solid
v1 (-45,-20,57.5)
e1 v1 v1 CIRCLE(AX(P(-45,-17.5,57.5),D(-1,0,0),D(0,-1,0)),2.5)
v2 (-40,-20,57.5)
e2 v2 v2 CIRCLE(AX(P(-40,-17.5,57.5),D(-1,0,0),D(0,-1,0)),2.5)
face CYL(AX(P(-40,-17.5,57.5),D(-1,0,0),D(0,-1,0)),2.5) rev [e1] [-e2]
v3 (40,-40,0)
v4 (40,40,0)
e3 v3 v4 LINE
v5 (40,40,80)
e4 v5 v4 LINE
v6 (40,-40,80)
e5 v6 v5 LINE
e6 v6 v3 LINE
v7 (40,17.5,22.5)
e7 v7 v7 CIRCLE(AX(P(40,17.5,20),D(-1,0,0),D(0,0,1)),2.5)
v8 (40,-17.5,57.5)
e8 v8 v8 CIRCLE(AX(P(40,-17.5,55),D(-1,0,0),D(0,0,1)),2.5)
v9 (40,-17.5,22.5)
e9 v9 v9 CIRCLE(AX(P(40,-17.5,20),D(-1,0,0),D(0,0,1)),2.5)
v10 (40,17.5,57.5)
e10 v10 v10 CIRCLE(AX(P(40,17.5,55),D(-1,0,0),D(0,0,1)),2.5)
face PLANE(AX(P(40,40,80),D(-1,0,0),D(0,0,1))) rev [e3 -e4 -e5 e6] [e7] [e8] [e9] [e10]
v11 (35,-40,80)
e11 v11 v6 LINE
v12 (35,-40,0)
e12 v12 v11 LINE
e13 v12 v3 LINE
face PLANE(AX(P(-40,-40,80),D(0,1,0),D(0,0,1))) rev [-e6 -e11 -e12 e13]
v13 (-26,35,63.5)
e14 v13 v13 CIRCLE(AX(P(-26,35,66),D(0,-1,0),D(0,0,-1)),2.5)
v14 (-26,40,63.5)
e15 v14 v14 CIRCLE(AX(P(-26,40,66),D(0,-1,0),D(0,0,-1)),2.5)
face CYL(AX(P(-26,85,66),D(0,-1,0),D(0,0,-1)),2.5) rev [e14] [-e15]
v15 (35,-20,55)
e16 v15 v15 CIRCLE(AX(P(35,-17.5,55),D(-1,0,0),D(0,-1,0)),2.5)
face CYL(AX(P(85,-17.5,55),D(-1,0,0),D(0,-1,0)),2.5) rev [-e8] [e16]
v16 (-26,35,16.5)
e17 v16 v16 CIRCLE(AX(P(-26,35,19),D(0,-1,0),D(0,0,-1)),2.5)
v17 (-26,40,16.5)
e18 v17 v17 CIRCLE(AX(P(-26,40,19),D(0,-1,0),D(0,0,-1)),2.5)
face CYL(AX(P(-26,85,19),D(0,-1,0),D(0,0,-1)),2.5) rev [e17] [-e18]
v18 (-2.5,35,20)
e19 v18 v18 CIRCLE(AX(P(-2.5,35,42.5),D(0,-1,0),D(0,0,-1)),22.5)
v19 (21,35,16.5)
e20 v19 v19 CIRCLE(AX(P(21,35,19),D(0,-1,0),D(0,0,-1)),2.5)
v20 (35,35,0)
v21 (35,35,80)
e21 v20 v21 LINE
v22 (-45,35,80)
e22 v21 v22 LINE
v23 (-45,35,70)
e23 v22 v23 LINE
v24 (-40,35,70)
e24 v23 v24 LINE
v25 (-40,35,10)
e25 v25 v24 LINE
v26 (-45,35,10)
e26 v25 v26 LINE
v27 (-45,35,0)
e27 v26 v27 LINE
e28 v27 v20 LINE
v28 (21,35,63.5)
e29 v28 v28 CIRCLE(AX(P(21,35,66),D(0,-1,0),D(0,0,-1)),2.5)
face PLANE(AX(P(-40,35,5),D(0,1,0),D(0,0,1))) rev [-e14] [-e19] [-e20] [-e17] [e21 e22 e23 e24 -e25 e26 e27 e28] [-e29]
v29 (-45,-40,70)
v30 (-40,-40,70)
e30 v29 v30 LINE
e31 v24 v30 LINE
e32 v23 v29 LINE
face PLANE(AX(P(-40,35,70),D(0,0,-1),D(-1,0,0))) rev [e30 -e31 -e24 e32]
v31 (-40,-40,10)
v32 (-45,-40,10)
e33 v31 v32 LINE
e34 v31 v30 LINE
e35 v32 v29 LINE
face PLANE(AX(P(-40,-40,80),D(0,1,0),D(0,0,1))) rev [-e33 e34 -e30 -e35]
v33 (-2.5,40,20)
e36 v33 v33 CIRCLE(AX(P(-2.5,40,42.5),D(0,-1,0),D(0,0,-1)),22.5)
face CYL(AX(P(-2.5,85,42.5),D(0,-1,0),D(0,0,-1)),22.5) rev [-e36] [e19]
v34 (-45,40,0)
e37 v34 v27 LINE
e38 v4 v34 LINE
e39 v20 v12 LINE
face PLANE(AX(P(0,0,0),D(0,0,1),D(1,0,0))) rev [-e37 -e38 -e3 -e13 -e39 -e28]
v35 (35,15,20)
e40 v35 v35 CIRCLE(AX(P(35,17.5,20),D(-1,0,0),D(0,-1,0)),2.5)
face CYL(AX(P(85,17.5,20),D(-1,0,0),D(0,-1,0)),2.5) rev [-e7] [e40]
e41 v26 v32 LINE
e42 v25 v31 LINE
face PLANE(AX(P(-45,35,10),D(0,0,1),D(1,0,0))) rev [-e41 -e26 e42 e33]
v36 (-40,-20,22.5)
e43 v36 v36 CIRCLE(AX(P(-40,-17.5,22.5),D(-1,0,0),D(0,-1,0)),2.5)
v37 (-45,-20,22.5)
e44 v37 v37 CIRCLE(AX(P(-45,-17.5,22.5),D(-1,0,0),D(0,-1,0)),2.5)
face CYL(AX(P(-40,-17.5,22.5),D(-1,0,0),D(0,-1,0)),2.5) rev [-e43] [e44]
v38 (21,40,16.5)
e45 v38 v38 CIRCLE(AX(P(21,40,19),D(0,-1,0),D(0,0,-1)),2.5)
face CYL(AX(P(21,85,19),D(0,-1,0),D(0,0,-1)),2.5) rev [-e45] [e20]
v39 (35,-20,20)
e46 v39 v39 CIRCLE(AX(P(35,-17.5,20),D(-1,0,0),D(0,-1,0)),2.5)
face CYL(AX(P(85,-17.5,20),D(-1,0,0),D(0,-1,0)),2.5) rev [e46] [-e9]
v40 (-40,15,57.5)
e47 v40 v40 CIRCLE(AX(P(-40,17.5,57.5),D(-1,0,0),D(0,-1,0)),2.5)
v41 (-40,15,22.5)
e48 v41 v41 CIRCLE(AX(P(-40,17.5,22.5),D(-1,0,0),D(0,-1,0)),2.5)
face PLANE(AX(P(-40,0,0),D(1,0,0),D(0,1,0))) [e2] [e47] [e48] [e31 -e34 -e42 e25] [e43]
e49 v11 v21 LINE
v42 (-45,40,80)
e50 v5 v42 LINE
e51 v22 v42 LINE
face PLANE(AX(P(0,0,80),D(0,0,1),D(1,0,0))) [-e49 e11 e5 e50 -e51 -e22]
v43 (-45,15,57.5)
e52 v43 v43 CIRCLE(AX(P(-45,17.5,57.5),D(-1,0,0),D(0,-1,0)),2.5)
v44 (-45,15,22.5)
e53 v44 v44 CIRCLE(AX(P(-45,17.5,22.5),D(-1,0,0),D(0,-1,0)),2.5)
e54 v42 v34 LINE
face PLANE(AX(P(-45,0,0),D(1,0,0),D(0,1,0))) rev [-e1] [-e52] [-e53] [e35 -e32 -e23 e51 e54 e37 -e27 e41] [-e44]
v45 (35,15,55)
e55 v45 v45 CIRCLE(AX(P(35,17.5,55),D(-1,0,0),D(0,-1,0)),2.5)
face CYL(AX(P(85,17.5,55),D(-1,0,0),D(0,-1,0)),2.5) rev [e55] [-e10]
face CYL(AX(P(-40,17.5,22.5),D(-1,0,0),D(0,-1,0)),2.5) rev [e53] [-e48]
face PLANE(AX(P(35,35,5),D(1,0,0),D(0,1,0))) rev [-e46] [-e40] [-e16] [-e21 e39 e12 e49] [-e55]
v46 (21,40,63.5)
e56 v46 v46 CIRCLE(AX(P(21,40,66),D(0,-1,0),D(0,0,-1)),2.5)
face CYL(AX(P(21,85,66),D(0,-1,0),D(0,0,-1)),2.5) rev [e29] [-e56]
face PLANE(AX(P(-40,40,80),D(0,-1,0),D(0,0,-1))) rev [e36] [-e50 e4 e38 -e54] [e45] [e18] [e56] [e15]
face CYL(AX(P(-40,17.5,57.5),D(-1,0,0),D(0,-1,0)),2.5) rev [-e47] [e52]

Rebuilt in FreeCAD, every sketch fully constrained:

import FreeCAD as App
import Part
import Sketcher
Q = App.Units.Quantity


def add_polygon(sketch, points):
    """Adds a closed chain of lines whose ends are joined by coincident constraints."""
    first, n = sketch.GeometryCount, len(points)
    for a, b in zip(points, points[1:] + points[:1]):
        sketch.addGeometry(Part.LineSegment(App.Vector(*a, 0), App.Vector(*b, 0)), False)
    for i in range(n):
        sketch.addConstraint(Sketcher.Constraint("Coincident", first + i, 2, first + (i + 1) % n, 1))

doc = App.newDocument("Part")
params = doc.addObject("Spreadsheet::Sheet", "Params")
for row, (alias, value) in enumerate([
    ("sketch1_width", "80 mm"),
    ("pad1_length", "80 mm"),
    ("sketch2_width", "75 mm"),
    ("pocket1_length", "75 mm"),
    ("sketch3_diameter", "5 mm"),
    ("pocket2_length", "50 mm"),
    ("sketch4_diameter", "5 mm"),
    ("pocket3_length", "50 mm"),
    ("sketch5_diameter", "45 mm"),
    ("pocket4_length", "50 mm"),
    ("sketch6_width", "80 mm"),
    ("pad2_length", "5 mm"),
    ("sketch7_diameter", "5 mm"),
    ("pocket5_length", "5 mm"),
    ("sketch8_width", "5 mm"),
    ("sketch8_height", "10 mm"),
    ("pocket6_length", "75 mm"),
    ("sketch9_width", "75 mm"),
    ("sketch9_height", "5 mm"),
    ("pocket7_length", "75 mm"),
], start=1):
    params.set(f"A{row}", alias)
    params.set(f"B{row}", "=" + value)
    params.setAlias(f"B{row}", alias)

body = doc.addObject("PartDesign::Body", "Body")

# Sketch on XY plane
sketch1 = body.newObject("Sketcher::SketchObject", "Sketch")
sketch1.AttachmentSupport = (doc.getObject("XY_Plane"), [""])
sketch1.MapMode = "FlatFace"
add_polygon(sketch1, [(-40, 40), (-40, -40), (40, -40), (40, 40)])  # lines 0-3
sketch1.addConstraint(Sketcher.Constraint("Vertical", 0))
sketch1.addConstraint(Sketcher.Constraint("Horizontal", 1))
sketch1.addConstraint(Sketcher.Constraint("Vertical", 2))
sketch1.addConstraint(Sketcher.Constraint("Horizontal", 3))
sketch1.addConstraint(Sketcher.Constraint("Symmetric", 0, 2, 2, 2, -1, 1))
sketch1.addConstraint(Sketcher.Constraint("Equal", 3, 0))
sketch1.addConstraint(Sketcher.Constraint("DistanceX", 1, 1, 1, 2, Q("80 mm")))
sketch1.setExpression("Constraints[10]", "Params.sketch1_width")
pad1 = body.newObject("PartDesign::Pad", "Pad")
pad1.Profile = sketch1
pad1.setExpression("Length", "Params.pad1_length")

# Sketch on XY plane
sketch2 = body.newObject("Sketcher::SketchObject", "Sketch001")
sketch2.AttachmentSupport = (doc.getObject("XY_Plane"), [""])
sketch2.MapMode = "FlatFace"
sketch2.AttachmentOffset = App.Placement(App.Vector(0, 0, 80), App.Rotation())
add_polygon(sketch2, [(-40, 35), (-40, -40), (35, -40), (35, 35)])  # lines 0-3
sketch2.addConstraint(Sketcher.Constraint("Vertical", 0))
sketch2.addConstraint(Sketcher.Constraint("Horizontal", 1))
sketch2.addConstraint(Sketcher.Constraint("Vertical", 2))
sketch2.addConstraint(Sketcher.Constraint("Horizontal", 3))
sketch2.addConstraint(Sketcher.Constraint("Equal", 3, 0))
sketch2.addConstraint(Sketcher.Constraint("DistanceX", 1, 1, 1, 2, Q("75 mm")))
sketch2.addConstraint(Sketcher.Constraint("DistanceX", 0, 2, -1, 1, Q("40 mm")))
sketch2.addConstraint(Sketcher.Constraint("DistanceY", 0, 2, -1, 1, Q("40 mm")))
sketch2.setExpression("Constraints[9]", "Params.sketch2_width")
pocket1 = body.newObject("PartDesign::Pocket", "Pocket")
pocket1.Profile = sketch2
pocket1.setExpression("Length", "Params.pocket1_length")

# Sketch on YZ plane
sketch3 = body.newObject("Sketcher::SketchObject", "Sketch002")
sketch3.AttachmentSupport = (doc.getObject("YZ_Plane"), [""])
sketch3.MapMode = "FlatFace"
sketch3.AttachmentOffset = App.Placement(App.Vector(0, 0, 35), App.Rotation())
sketch3.addGeometry(Part.Circle(App.Vector(-17.5, 55, 0), App.Vector(0, 0, 1), 2.5), False)
sketch3.addGeometry(Part.Circle(App.Vector(-17.5, 20, 0), App.Vector(0, 0, 1), 2.5), False)
sketch3.addGeometry(Part.Circle(App.Vector(17.5, 20, 0), App.Vector(0, 0, 1), 2.5), False)
sketch3.addGeometry(Part.Circle(App.Vector(17.5, 55, 0), App.Vector(0, 0, 1), 2.5), False)
sketch3.addConstraint(Sketcher.Constraint("Equal", 0, 1))
sketch3.addConstraint(Sketcher.Constraint("Equal", 1, 2))
sketch3.addConstraint(Sketcher.Constraint("Equal", 2, 3))
sketch3.addConstraint(Sketcher.Constraint("Symmetric", 1, 3, 2, 3, -2))
sketch3.addConstraint(Sketcher.Constraint("Symmetric", 0, 3, 3, 3, -2))
sketch3.addConstraint(Sketcher.Constraint("Vertical", 0, 3, 1, 3))
sketch3.addConstraint(Sketcher.Constraint("Diameter", 0, Q("5 mm")))
sketch3.addConstraint(Sketcher.Constraint("DistanceY", -1, 1, 0, 3, Q("55 mm")))
sketch3.addConstraint(Sketcher.Constraint("DistanceY", -1, 1, 1, 3, Q("20 mm")))
sketch3.addConstraint(Sketcher.Constraint("DistanceX", 1, 3, 2, 3, Q("35 mm")))
sketch3.setExpression("Constraints[6]", "Params.sketch3_diameter")
pocket2 = body.newObject("PartDesign::Pocket", "Pocket001")
pocket2.Profile = sketch3
pocket2.setExpression("Length", "Params.pocket2_length")
pocket2.Reversed = True

# Sketch on XZ plane
sketch4 = body.newObject("Sketcher::SketchObject", "Sketch003")
sketch4.AttachmentSupport = (doc.getObject("XZ_Plane"), [""])
sketch4.MapMode = "FlatFace"
sketch4.AttachmentOffset = App.Placement(App.Vector(0, 0, -35), App.Rotation())
sketch4.addGeometry(Part.Circle(App.Vector(-26, 66, 0), App.Vector(0, 0, 1), 2.5), False)
sketch4.addGeometry(Part.Circle(App.Vector(21, 66, 0), App.Vector(0, 0, 1), 2.5), False)
sketch4.addGeometry(Part.Circle(App.Vector(-26, 19, 0), App.Vector(0, 0, 1), 2.5), False)
sketch4.addGeometry(Part.Circle(App.Vector(21, 19, 0), App.Vector(0, 0, 1), 2.5), False)
sketch4.addConstraint(Sketcher.Constraint("Equal", 0, 1))
sketch4.addConstraint(Sketcher.Constraint("Equal", 1, 2))
sketch4.addConstraint(Sketcher.Constraint("Equal", 2, 3))
sketch4.addConstraint(Sketcher.Constraint("Horizontal", 0, 3, 1, 3))
sketch4.addConstraint(Sketcher.Constraint("Horizontal", 2, 3, 3, 3))
sketch4.addConstraint(Sketcher.Constraint("Vertical", 0, 3, 2, 3))
sketch4.addConstraint(Sketcher.Constraint("Vertical", 1, 3, 3, 3))
sketch4.addConstraint(Sketcher.Constraint("Diameter", 0, Q("5 mm")))
sketch4.addConstraint(Sketcher.Constraint("DistanceX", 0, 3, -1, 1, Q("26 mm")))
sketch4.addConstraint(Sketcher.Constraint("DistanceY", -1, 1, 0, 3, Q("66 mm")))
sketch4.addConstraint(Sketcher.Constraint("DistanceX", -1, 1, 1, 3, Q("21 mm")))
sketch4.addConstraint(Sketcher.Constraint("DistanceY", -1, 1, 2, 3, Q("19 mm")))
sketch4.setExpression("Constraints[7]", "Params.sketch4_diameter")
pocket3 = body.newObject("PartDesign::Pocket", "Pocket002")
pocket3.Profile = sketch4
pocket3.setExpression("Length", "Params.pocket3_length")

# Sketch on XZ plane
sketch5 = body.newObject("Sketcher::SketchObject", "Sketch004")
sketch5.AttachmentSupport = (doc.getObject("XZ_Plane"), [""])
sketch5.MapMode = "FlatFace"
sketch5.AttachmentOffset = App.Placement(App.Vector(0, 0, -35), App.Rotation())
sketch5.addGeometry(Part.Circle(App.Vector(-2, 42, 0), App.Vector(0, 0, 1), 22), False)
sketch5.addConstraint(Sketcher.Constraint("Diameter", 0, Q("45 mm")))
sketch5.addConstraint(Sketcher.Constraint("DistanceX", 0, 3, -1, 1, Q("2.5 mm")))
sketch5.addConstraint(Sketcher.Constraint("DistanceY", -1, 1, 0, 3, Q("42.5 mm")))
sketch5.setExpression("Constraints[0]", "Params.sketch5_diameter")
pocket4 = body.newObject("PartDesign::Pocket", "Pocket003")
pocket4.Profile = sketch5
pocket4.setExpression("Length", "Params.pocket4_length")

# Sketch on YZ plane
sketch6 = body.newObject("Sketcher::SketchObject", "Sketch005")
sketch6.AttachmentSupport = (doc.getObject("YZ_Plane"), [""])
sketch6.MapMode = "FlatFace"
sketch6.AttachmentOffset = App.Placement(App.Vector(0, 0, -40), App.Rotation())
add_polygon(sketch6, [(40, 0), (-40, 0), (-40, 80), (40, 80)])  # lines 0-3
sketch6.addConstraint(Sketcher.Constraint("Horizontal", 0))
sketch6.addConstraint(Sketcher.Constraint("Vertical", 1))
sketch6.addConstraint(Sketcher.Constraint("Horizontal", 2))
sketch6.addConstraint(Sketcher.Constraint("Vertical", 3))
sketch6.addConstraint(Sketcher.Constraint("Symmetric", 0, 2, 3, 2, -1, 1))
sketch6.addConstraint(Sketcher.Constraint("Equal", 2, 1))
sketch6.addConstraint(Sketcher.Constraint("DistanceX", 0, 2, 0, 1, Q("80 mm")))
sketch6.setExpression("Constraints[10]", "Params.sketch6_width")
pad2 = body.newObject("PartDesign::Pad", "Pad001")
pad2.Profile = sketch6
pad2.setExpression("Length", "Params.pad2_length")
pad2.Reversed = True

# Sketch on YZ plane
sketch7 = body.newObject("Sketcher::SketchObject", "Sketch006")
sketch7.AttachmentSupport = (doc.getObject("YZ_Plane"), [""])
sketch7.MapMode = "FlatFace"
sketch7.AttachmentOffset = App.Placement(App.Vector(0, 0, -45), App.Rotation())
sketch7.addGeometry(Part.Circle(App.Vector(17.5, 22.5, 0), App.Vector(0, 0, 1), 2.5), False)
sketch7.addGeometry(Part.Circle(App.Vector(17.5, 57.5, 0), App.Vector(0, 0, 1), 2.5), False)
sketch7.addGeometry(Part.Circle(App.Vector(-17.5, 22.5, 0), App.Vector(0, 0, 1), 2.5), False)
sketch7.addGeometry(Part.Circle(App.Vector(-17.5, 57.5, 0), App.Vector(0, 0, 1), 2.5), False)
sketch7.addConstraint(Sketcher.Constraint("Equal", 0, 1))
sketch7.addConstraint(Sketcher.Constraint("Equal", 1, 2))
sketch7.addConstraint(Sketcher.Constraint("Equal", 2, 3))
sketch7.addConstraint(Sketcher.Constraint("Symmetric", 0, 3, 2, 3, -2))
sketch7.addConstraint(Sketcher.Constraint("Symmetric", 1, 3, 3, 3, -2))
sketch7.addConstraint(Sketcher.Constraint("Vertical", 0, 3, 1, 3))
sketch7.addConstraint(Sketcher.Constraint("Diameter", 0, Q("5 mm")))
sketch7.addConstraint(Sketcher.Constraint("DistanceY", 0, 3, 1, 3, Q("35 mm")))
sketch7.addConstraint(Sketcher.Constraint("DistanceX", 2, 3, 0, 3, Q("35 mm")))
sketch7.addConstraint(Sketcher.Constraint("DistanceY", -1, 1, 0, 3, Q("22.5 mm")))
sketch7.setExpression("Constraints[6]", "Params.sketch7_diameter")
pocket5 = body.newObject("PartDesign::Pocket", "Pocket004")
pocket5.Profile = sketch7
pocket5.setExpression("Length", "Params.pocket5_length")
pocket5.Reversed = True

# Sketch on XZ plane
sketch8 = body.newObject("Sketcher::SketchObject", "Sketch007")
sketch8.AttachmentSupport = (doc.getObject("XZ_Plane"), [""])
sketch8.MapMode = "FlatFace"
sketch8.AttachmentOffset = App.Placement(App.Vector(0, 0, 40), App.Rotation())
add_polygon(sketch8, [(-45, 80), (-45, 70), (-40, 70), (-40, 80)])  # lines 0-3
add_polygon(sketch8, [(-45, 10), (-45, 0), (-40, 0), (-40, 10)])  # lines 4-7
sketch8.addConstraint(Sketcher.Constraint("Vertical", 0))
sketch8.addConstraint(Sketcher.Constraint("Horizontal", 1))
sketch8.addConstraint(Sketcher.Constraint("Vertical", 2))
sketch8.addConstraint(Sketcher.Constraint("Horizontal", 3))
sketch8.addConstraint(Sketcher.Constraint("Vertical", 4))
sketch8.addConstraint(Sketcher.Constraint("Horizontal", 5))
sketch8.addConstraint(Sketcher.Constraint("Vertical", 6))
sketch8.addConstraint(Sketcher.Constraint("Horizontal", 7))
sketch8.addConstraint(Sketcher.Constraint("PointOnObject", 4, 2, -1))
sketch8.addConstraint(Sketcher.Constraint("Vertical", 3, 2, 4, 2))
sketch8.addConstraint(Sketcher.Constraint("Vertical", 2, 2, 5, 2))
sketch8.addConstraint(Sketcher.Constraint("Equal", 2, 4))
sketch8.addConstraint(Sketcher.Constraint("DistanceX", 1, 1, 1, 2, Q("5 mm")))
sketch8.addConstraint(Sketcher.Constraint("DistanceY", 0, 2, 0, 1, Q("10 mm")))
sketch8.addConstraint(Sketcher.Constraint("DistanceX", 0, 2, -1, 1, Q("45 mm")))
sketch8.addConstraint(Sketcher.Constraint("DistanceY", -1, 1, 0, 2, Q("70 mm")))
sketch8.setExpression("Constraints[20]", "Params.sketch8_width")
sketch8.setExpression("Constraints[21]", "Params.sketch8_height")
pocket6 = body.newObject("PartDesign::Pocket", "Pocket005")
pocket6.Profile = sketch8
pocket6.setExpression("Length", "Params.pocket6_length")

# Sketch on YZ plane
sketch9 = body.newObject("Sketcher::SketchObject", "Sketch008")
sketch9.AttachmentSupport = (doc.getObject("YZ_Plane"), [""])
sketch9.MapMode = "FlatFace"
sketch9.AttachmentOffset = App.Placement(App.Vector(0, 0, -40), App.Rotation())
add_polygon(sketch9, [(35, 0), (-40, 0), (-40, 5), (35, 5)])  # lines 0-3
sketch9.addConstraint(Sketcher.Constraint("Horizontal", 0))
sketch9.addConstraint(Sketcher.Constraint("Vertical", 1))
sketch9.addConstraint(Sketcher.Constraint("Horizontal", 2))
sketch9.addConstraint(Sketcher.Constraint("Vertical", 3))
sketch9.addConstraint(Sketcher.Constraint("PointOnObject", 0, 2, -1))
sketch9.addConstraint(Sketcher.Constraint("DistanceX", 0, 2, 0, 1, Q("75 mm")))
sketch9.addConstraint(Sketcher.Constraint("DistanceY", 1, 1, 1, 2, Q("5 mm")))
sketch9.addConstraint(Sketcher.Constraint("DistanceX", 0, 2, -1, 1, Q("40 mm")))
sketch9.setExpression("Constraints[9]", "Params.sketch9_width")
sketch9.setExpression("Constraints[10]", "Params.sketch9_height")
pocket7 = body.newObject("PartDesign::Pocket", "Pocket006")
pocket7.Profile = sketch9
pocket7.setExpression("Length", "Params.pocket7_length")
pocket7.Reversed = True

doc.recompute()
